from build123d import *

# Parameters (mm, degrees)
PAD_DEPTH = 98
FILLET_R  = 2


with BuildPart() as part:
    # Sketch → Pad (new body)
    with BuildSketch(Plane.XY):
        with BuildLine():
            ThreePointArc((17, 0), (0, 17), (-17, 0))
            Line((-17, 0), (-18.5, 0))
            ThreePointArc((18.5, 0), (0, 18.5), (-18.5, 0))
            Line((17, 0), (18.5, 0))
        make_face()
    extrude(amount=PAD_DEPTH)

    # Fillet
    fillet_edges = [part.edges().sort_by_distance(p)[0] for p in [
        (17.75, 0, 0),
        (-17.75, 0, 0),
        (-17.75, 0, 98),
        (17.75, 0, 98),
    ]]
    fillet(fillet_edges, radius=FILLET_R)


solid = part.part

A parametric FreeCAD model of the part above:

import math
import FreeCAD as App
import Part
import Sketcher
Q = App.Units.Quantity


def edges_at(feature, points):
    """Names of the edges that pass closest to the given points."""
    edges = feature.Shape.Edges
    near = lambda p: min(range(len(edges)), key=lambda i: edges[i].distToShape(Part.Vertex(*p))[0])
    return sorted({f"Edge{near(p) + 1}" for p in points})

doc = App.newDocument("Part")
body = doc.addObject("PartDesign::Body", "Body")

# Sketch on XY plane
sketch1 = body.newObject("Sketcher::SketchObject", "Sketch")
sketch1.AttachmentSupport = (doc.getObject("XY_Plane"), [""])
sketch1.MapMode = "FlatFace"
sketch1.addGeometry(Part.ArcOfCircle(Part.Circle(App.Vector(0, 0, 0), App.Vector(0, 0, 1), 17), math.radians(0), math.radians(180)), False)
sketch1.addGeometry(Part.LineSegment(App.Vector(17, 0, 0), App.Vector(18.5, 0, 0)), False)
sketch1.addGeometry(Part.ArcOfCircle(Part.Circle(App.Vector(0, 0, 0), App.Vector(0, 0, 1), 18.5), math.radians(0), math.radians(180)), False)
sketch1.addGeometry(Part.LineSegment(App.Vector(-18.5, 0, 0), App.Vector(-17, 0, 0)), False)
sketch1.addConstraint(Sketcher.Constraint("Coincident", 0, 1, 1, 1))
sketch1.addConstraint(Sketcher.Constraint("Coincident", 1, 2, 2, 1))
sketch1.addConstraint(Sketcher.Constraint("Coincident", 2, 2, 3, 1))
sketch1.addConstraint(Sketcher.Constraint("Coincident", 3, 2, 0, 2))
sketch1.addConstraint(Sketcher.Constraint("Horizontal", 1))
sketch1.addConstraint(Sketcher.Constraint("Horizontal", 3))
sketch1.addConstraint(Sketcher.Constraint("Coincident", 0, 3, -1, 1))
sketch1.addConstraint(Sketcher.Constraint("Coincident", 2, 3, -1, 1))
sketch1.addConstraint(Sketcher.Constraint("PointOnObject", 0, 1, -1))
sketch1.addConstraint(Sketcher.Constraint("PointOnObject", 2, 2, -1))
sketch1.addConstraint(Sketcher.Constraint("Radius", 0, Q("17 mm")))
sketch1.addConstraint(Sketcher.Constraint("Radius", 2, Q("18.5 mm")))
pad1 = body.newObject("PartDesign::Pad", "Pad")
pad1.Profile = sketch1
pad1.Length = 98
doc.recompute()

fillet = body.newObject("PartDesign::Fillet", "Fillet")
fillet.Base = (pad1, edges_at(pad1, [
    (17.75, 0, 0),
    (-17.75, 0, 0),
    (-17.75, 0, 98),
    (17.75, 0, 98),
]))
fillet.Radius = 2

doc.recompute()
